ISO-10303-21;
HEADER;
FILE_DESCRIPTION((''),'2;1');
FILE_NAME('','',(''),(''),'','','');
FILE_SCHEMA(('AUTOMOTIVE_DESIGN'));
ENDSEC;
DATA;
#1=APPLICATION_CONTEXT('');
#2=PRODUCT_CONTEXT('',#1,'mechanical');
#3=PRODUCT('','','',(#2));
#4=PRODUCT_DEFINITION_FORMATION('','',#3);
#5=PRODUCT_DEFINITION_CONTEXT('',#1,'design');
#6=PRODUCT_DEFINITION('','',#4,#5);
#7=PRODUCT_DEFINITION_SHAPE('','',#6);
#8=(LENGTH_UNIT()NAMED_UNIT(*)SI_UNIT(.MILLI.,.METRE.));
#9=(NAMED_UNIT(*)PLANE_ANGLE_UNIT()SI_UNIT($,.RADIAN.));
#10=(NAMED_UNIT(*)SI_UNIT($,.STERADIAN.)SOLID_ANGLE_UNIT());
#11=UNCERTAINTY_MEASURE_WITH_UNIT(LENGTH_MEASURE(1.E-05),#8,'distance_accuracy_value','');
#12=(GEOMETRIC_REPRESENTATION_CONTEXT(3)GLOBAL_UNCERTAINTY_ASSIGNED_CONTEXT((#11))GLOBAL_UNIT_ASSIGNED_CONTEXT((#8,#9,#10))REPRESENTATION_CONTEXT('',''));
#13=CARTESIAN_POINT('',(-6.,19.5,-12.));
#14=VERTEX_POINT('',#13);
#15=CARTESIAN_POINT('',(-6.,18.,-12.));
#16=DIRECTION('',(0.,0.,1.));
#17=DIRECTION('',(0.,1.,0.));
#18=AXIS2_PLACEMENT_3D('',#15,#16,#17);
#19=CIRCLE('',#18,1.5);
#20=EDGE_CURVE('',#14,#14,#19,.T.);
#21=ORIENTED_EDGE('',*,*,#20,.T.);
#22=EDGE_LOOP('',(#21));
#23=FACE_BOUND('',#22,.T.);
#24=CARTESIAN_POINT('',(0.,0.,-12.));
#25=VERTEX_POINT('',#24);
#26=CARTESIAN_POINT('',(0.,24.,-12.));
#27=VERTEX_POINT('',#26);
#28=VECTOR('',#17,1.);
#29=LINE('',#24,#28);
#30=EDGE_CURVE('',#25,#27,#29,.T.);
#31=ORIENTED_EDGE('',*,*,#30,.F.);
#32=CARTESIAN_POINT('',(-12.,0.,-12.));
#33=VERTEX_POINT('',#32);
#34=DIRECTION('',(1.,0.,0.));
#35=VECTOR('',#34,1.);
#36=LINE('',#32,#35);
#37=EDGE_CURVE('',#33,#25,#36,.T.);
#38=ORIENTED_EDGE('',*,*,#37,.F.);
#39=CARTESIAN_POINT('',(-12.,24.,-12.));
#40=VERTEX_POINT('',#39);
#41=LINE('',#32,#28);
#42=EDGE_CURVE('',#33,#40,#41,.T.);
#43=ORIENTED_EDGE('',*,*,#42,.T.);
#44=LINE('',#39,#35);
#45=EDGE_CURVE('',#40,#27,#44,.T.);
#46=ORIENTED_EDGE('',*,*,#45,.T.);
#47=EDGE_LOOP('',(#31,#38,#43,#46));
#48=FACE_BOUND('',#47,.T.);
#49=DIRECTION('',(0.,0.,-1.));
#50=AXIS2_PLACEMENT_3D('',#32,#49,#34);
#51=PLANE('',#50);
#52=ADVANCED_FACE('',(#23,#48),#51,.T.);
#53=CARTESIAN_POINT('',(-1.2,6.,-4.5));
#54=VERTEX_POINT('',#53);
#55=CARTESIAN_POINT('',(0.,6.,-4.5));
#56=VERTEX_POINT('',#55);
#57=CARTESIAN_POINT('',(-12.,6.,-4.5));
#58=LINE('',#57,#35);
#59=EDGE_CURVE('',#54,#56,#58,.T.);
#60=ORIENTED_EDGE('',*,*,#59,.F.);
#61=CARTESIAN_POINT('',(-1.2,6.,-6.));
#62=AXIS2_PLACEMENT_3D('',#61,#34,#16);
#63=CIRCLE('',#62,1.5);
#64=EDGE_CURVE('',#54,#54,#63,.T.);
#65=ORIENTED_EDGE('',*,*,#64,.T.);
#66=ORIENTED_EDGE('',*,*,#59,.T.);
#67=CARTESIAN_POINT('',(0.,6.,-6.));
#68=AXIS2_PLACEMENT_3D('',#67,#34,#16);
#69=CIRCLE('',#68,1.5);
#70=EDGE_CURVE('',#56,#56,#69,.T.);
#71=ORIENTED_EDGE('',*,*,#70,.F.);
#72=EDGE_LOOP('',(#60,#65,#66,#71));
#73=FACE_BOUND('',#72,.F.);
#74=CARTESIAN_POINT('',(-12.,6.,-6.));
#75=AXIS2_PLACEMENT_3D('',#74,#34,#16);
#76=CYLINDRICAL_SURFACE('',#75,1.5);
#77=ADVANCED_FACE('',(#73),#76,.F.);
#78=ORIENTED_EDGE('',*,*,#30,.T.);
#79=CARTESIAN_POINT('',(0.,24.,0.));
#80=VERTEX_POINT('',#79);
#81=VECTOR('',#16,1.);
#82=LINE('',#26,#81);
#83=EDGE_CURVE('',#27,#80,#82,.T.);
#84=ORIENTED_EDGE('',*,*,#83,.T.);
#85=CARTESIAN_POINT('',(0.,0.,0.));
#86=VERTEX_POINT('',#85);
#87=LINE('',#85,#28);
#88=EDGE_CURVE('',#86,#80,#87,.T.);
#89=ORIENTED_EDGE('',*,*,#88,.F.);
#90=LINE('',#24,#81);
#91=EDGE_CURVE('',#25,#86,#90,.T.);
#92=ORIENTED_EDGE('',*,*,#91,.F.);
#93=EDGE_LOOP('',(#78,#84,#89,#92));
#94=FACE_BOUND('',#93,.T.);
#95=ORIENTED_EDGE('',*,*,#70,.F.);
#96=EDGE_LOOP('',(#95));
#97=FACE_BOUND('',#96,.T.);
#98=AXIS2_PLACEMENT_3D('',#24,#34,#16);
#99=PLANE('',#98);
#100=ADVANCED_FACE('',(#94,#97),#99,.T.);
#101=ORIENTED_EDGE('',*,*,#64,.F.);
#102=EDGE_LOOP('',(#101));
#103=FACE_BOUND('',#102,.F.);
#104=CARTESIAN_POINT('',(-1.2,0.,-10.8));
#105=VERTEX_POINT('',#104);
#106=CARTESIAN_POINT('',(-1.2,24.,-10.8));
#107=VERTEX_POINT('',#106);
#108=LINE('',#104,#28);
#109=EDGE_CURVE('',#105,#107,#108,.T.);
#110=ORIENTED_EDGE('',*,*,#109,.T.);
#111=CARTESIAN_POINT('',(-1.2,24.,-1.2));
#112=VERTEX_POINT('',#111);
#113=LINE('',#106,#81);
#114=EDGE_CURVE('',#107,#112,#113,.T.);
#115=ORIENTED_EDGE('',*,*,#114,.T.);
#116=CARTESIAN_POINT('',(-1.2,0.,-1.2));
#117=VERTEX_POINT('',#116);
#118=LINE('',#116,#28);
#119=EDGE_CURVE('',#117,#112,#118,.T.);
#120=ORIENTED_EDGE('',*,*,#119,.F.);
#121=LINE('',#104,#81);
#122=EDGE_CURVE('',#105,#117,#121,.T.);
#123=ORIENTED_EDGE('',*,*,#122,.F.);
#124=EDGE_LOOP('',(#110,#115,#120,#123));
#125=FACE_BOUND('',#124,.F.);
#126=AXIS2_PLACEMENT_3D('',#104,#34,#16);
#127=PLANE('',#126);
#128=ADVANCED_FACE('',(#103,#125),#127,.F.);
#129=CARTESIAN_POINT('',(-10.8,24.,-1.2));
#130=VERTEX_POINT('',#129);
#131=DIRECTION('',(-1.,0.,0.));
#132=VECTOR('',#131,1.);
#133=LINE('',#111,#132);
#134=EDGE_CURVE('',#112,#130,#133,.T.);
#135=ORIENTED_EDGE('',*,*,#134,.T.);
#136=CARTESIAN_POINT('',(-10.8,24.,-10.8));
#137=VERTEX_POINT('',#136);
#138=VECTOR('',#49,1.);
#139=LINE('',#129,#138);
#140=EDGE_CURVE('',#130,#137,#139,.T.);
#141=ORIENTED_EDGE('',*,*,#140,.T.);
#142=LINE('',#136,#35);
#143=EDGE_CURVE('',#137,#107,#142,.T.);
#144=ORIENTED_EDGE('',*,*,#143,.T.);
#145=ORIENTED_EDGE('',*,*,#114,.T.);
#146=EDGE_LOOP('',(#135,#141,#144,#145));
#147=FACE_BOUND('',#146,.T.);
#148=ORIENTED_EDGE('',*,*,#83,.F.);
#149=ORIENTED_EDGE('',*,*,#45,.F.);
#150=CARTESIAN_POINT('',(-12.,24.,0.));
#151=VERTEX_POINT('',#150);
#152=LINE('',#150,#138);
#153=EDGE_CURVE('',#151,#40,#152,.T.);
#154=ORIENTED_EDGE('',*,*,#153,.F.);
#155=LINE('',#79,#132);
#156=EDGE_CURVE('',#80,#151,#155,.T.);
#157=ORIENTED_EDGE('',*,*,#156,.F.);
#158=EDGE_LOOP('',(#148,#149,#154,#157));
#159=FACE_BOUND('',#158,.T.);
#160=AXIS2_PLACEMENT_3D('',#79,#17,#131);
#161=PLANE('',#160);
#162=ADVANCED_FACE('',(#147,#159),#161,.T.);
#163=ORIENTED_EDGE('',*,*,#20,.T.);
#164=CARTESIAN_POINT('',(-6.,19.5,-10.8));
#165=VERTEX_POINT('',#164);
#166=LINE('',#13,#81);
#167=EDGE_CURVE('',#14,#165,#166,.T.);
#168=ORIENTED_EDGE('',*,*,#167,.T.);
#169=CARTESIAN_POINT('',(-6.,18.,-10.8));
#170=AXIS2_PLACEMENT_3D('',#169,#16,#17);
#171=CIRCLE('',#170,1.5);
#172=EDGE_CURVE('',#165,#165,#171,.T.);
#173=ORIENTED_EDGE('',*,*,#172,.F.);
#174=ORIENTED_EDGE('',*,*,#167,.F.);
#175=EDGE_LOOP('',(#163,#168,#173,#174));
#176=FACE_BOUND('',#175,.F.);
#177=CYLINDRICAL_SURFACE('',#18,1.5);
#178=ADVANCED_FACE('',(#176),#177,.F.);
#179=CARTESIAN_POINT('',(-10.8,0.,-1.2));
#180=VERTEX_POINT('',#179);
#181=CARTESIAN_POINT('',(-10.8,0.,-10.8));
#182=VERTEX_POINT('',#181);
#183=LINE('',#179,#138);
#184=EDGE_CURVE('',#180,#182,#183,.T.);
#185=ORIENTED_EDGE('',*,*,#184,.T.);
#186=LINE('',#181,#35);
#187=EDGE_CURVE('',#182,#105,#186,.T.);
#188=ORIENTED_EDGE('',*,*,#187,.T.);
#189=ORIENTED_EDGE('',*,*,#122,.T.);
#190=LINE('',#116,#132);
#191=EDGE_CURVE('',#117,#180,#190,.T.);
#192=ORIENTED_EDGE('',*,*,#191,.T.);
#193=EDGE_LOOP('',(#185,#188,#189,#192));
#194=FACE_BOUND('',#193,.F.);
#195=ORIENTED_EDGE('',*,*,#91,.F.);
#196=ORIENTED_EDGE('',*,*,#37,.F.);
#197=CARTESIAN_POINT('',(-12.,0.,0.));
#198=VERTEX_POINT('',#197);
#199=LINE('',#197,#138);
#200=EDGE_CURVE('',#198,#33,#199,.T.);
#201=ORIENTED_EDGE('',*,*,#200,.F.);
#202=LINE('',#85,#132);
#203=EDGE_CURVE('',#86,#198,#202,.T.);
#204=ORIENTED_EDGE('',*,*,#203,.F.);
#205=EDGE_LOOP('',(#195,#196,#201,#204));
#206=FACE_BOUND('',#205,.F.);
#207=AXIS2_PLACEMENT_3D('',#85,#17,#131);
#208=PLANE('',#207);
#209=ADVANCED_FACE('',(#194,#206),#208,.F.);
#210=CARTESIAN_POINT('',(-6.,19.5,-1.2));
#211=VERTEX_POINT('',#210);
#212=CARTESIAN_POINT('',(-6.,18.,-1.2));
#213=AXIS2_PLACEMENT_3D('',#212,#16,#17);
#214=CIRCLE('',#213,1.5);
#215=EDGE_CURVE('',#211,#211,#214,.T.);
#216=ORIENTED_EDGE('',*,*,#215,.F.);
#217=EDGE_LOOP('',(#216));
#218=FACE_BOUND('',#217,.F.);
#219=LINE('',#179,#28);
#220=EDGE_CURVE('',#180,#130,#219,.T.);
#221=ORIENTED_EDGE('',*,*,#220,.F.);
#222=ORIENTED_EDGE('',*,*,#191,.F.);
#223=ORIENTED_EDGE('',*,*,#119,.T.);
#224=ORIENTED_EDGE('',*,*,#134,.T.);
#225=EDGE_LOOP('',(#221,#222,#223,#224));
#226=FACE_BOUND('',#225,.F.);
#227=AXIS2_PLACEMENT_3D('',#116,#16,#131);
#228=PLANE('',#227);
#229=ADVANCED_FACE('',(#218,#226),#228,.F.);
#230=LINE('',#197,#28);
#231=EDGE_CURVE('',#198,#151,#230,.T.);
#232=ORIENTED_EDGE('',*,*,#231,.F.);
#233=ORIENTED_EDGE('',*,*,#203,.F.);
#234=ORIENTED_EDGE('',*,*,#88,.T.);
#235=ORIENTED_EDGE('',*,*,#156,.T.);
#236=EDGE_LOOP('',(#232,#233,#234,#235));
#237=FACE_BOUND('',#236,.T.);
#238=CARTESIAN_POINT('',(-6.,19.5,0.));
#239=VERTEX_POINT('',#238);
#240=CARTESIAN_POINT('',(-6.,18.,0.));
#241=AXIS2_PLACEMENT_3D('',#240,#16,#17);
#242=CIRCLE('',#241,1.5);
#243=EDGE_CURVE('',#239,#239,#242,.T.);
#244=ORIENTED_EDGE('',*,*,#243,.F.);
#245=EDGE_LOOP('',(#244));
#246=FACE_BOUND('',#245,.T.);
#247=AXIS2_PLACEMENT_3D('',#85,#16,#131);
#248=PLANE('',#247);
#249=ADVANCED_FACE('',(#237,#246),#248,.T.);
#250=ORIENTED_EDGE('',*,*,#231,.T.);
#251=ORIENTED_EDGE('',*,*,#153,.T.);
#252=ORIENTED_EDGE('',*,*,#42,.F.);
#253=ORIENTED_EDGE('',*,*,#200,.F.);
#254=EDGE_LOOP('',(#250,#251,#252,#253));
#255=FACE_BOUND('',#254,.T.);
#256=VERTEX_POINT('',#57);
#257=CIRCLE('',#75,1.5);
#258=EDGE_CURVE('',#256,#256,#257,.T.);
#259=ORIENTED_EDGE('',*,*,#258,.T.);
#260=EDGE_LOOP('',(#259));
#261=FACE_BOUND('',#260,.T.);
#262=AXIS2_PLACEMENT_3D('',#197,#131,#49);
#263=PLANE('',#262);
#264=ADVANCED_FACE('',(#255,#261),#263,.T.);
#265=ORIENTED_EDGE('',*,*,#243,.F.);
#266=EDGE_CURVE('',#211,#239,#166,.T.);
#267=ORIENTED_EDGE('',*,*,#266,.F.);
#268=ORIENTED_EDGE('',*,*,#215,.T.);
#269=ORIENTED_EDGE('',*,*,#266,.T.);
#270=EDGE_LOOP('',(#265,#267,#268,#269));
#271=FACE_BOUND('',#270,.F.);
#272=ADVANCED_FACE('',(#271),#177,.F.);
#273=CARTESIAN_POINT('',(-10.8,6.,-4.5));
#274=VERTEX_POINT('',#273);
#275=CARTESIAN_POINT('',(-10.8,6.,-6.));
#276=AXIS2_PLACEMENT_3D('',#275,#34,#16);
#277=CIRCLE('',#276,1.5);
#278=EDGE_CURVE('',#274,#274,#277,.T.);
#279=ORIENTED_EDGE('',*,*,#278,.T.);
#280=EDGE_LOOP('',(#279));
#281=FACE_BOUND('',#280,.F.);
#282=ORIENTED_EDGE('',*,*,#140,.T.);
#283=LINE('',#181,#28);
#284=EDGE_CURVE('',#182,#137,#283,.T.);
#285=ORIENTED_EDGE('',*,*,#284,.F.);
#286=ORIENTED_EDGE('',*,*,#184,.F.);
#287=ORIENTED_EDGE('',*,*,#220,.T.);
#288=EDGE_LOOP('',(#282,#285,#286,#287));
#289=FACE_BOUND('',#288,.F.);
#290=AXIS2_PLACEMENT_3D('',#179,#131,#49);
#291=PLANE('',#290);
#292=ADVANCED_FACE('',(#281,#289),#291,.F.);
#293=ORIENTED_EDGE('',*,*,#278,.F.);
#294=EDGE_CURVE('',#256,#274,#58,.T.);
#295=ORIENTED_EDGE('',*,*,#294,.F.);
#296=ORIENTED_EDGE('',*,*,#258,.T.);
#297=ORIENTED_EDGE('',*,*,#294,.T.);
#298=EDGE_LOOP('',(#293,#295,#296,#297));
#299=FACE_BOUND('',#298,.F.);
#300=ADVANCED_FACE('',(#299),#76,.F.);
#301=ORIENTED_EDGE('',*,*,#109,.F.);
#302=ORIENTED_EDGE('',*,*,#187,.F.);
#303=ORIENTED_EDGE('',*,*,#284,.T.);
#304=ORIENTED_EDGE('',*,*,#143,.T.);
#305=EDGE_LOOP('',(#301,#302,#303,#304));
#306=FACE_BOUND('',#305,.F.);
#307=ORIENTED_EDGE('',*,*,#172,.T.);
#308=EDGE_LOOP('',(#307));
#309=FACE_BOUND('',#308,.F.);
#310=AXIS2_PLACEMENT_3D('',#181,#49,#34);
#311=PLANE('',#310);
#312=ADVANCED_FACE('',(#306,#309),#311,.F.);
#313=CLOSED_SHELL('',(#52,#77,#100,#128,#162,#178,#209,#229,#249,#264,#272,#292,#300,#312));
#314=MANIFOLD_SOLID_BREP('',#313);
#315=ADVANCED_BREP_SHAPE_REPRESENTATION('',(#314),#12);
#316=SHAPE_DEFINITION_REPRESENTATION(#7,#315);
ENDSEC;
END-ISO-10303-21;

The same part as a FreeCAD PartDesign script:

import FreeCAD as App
import Part
import Sketcher
from FreeCAD import Vector

doc = App.newDocument("Part")
params = doc.addObject("Spreadsheet::Sheet", "Params")
for row, (alias, value) in enumerate([
    ("sketch1_width", "12 mm"),
    ("sketch1_width2", "9.6 mm"),
    ("pad1_length", "24 mm"),
    ("sketch2_diameter", "3 mm"),
    ("hole_diameter", "3 mm"),
    ("sketch3_diameter", "3 mm"),
    ("hole2_diameter", "3 mm"),
], start=1):
    params.set(f"A{row}", alias)
    params.set(f"B{row}", "=" + value)
    params.setAlias(f"B{row}", alias)

body = doc.addObject("PartDesign::Body", "Body")

sketch1 = body.newObject("Sketcher::SketchObject", "Sketch")
sketch1.AttachmentSupport = (doc.getObject("XZ_Plane"), [""])
sketch1.MapMode = "FlatFace"
sketch1.addGeometry([
    Part.LineSegment(Vector(-12, 0, 0), Vector(0, 0, 0)),
    Part.LineSegment(Vector(0, 0, 0), Vector(0, -12, 0)),
    Part.LineSegment(Vector(0, -12, 0), Vector(-12, -12, 0)),
    Part.LineSegment(Vector(-12, -12, 0), Vector(-12, 0, 0)),
    Part.LineSegment(Vector(-1, -11, 0), Vector(-1, -1, 0)),
    Part.LineSegment(Vector(-1, -1, 0), Vector(-11, -1, 0)),
    Part.LineSegment(Vector(-11, -1, 0), Vector(-11, -11, 0)),
    Part.LineSegment(Vector(-11, -11, 0), Vector(-1, -11, 0)),
], False)
sketch1.addConstraint([
    Sketcher.Constraint("Coincident", 0, 2, 1, 1),
    Sketcher.Constraint("Coincident", 1, 2, 2, 1),
    Sketcher.Constraint("Coincident", 2, 2, 3, 1),
    Sketcher.Constraint("Coincident", 3, 2, 0, 1),
    Sketcher.Constraint("Coincident", 4, 2, 5, 1),
    Sketcher.Constraint("Coincident", 5, 2, 6, 1),
    Sketcher.Constraint("Coincident", 6, 2, 7, 1),
    Sketcher.Constraint("Coincident", 7, 2, 4, 1),
    Sketcher.Constraint("Horizontal", 0),
    Sketcher.Constraint("Vertical", 1),
    Sketcher.Constraint("Horizontal", 2),
    Sketcher.Constraint("Vertical", 3),
    Sketcher.Constraint("Vertical", 4),
    Sketcher.Constraint("Horizontal", 5),
    Sketcher.Constraint("Vertical", 6),
    Sketcher.Constraint("Horizontal", 7),
    Sketcher.Constraint("Coincident", 0, 2, -1, 1),
    Sketcher.Constraint("Equal", 2, 1),
    Sketcher.Constraint("Equal", 7, 4),
    Sketcher.Constraint("DistanceX", 0, 1, 0, 2, 12.0),
    Sketcher.Constraint("DistanceX", 5, 2, 5, 1, 9.6),
    Sketcher.Constraint("DistanceX", 4, 2, -1, 1, 1.2),
    Sketcher.Constraint("DistanceY", 4, 2, -1, 1, 1.2),
])
sketch1.setExpression("Constraints[19]", "Params.sketch1_width")
sketch1.setExpression("Constraints[20]", "Params.sketch1_width2")
pad1 = body.newObject("PartDesign::Pad", "Pad")
pad1.Profile = sketch1
pad1.setExpression("Length", "Params.pad1_length")
pad1.Reversed = True

sketch2 = body.newObject("Sketcher::SketchObject", "Sketch001")
sketch2.AttachmentSupport = (doc.getObject("YZ_Plane"), [""])
sketch2.MapMode = "FlatFace"
sketch2.AttachmentOffset = App.Placement(Vector(0, 0, -12), App.Rotation())
sketch2.addGeometry(Part.Circle(Vector(6, -6, 0), Vector(0, 0, 1), 1.5), False)
sketch2.addConstraint([
    Sketcher.Constraint("Diameter", 0, 3.0),
    Sketcher.Constraint("DistanceX", -1, 1, 0, 3, 6.0),
    Sketcher.Constraint("DistanceY", 0, 3, -1, 1, 6.0),
])
sketch2.setExpression("Constraints[0]", "Params.sketch2_diameter")
doc.recompute()
hole = body.newObject("PartDesign::Hole", "Hole")
hole.Profile = sketch2
hole.ThreadType = "None"
hole.setExpression("Diameter", "Params.hole_diameter")
hole.DepthType = "ThroughAll"
hole.Reversed = True

sketch3 = body.newObject("Sketcher::SketchObject", "Sketch002")
sketch3.AttachmentSupport = (doc.getObject("XY_Plane"), [""])
sketch3.MapMode = "FlatFace"
sketch3.AttachmentOffset = App.Placement(Vector(0, 0, -12), App.Rotation())
sketch3.addGeometry(Part.Circle(Vector(-6, 18, 0), Vector(0, 0, 1), 1.5), False)
sketch3.addConstraint([
    Sketcher.Constraint("Diameter", 0, 3.0),
    Sketcher.Constraint("DistanceX", 0, 3, -1, 1, 6.0),
    Sketcher.Constraint("DistanceY", -1, 1, 0, 3, 18.0),
])
sketch3.setExpression("Constraints[0]", "Params.sketch3_diameter")
doc.recompute()
hole2 = body.newObject("PartDesign::Hole", "Hole001")
hole2.Profile = sketch3
hole2.ThreadType = "None"
hole2.setExpression("Diameter", "Params.hole2_diameter")
hole2.DepthType = "ThroughAll"
hole2.Reversed = True

doc.recompute()
